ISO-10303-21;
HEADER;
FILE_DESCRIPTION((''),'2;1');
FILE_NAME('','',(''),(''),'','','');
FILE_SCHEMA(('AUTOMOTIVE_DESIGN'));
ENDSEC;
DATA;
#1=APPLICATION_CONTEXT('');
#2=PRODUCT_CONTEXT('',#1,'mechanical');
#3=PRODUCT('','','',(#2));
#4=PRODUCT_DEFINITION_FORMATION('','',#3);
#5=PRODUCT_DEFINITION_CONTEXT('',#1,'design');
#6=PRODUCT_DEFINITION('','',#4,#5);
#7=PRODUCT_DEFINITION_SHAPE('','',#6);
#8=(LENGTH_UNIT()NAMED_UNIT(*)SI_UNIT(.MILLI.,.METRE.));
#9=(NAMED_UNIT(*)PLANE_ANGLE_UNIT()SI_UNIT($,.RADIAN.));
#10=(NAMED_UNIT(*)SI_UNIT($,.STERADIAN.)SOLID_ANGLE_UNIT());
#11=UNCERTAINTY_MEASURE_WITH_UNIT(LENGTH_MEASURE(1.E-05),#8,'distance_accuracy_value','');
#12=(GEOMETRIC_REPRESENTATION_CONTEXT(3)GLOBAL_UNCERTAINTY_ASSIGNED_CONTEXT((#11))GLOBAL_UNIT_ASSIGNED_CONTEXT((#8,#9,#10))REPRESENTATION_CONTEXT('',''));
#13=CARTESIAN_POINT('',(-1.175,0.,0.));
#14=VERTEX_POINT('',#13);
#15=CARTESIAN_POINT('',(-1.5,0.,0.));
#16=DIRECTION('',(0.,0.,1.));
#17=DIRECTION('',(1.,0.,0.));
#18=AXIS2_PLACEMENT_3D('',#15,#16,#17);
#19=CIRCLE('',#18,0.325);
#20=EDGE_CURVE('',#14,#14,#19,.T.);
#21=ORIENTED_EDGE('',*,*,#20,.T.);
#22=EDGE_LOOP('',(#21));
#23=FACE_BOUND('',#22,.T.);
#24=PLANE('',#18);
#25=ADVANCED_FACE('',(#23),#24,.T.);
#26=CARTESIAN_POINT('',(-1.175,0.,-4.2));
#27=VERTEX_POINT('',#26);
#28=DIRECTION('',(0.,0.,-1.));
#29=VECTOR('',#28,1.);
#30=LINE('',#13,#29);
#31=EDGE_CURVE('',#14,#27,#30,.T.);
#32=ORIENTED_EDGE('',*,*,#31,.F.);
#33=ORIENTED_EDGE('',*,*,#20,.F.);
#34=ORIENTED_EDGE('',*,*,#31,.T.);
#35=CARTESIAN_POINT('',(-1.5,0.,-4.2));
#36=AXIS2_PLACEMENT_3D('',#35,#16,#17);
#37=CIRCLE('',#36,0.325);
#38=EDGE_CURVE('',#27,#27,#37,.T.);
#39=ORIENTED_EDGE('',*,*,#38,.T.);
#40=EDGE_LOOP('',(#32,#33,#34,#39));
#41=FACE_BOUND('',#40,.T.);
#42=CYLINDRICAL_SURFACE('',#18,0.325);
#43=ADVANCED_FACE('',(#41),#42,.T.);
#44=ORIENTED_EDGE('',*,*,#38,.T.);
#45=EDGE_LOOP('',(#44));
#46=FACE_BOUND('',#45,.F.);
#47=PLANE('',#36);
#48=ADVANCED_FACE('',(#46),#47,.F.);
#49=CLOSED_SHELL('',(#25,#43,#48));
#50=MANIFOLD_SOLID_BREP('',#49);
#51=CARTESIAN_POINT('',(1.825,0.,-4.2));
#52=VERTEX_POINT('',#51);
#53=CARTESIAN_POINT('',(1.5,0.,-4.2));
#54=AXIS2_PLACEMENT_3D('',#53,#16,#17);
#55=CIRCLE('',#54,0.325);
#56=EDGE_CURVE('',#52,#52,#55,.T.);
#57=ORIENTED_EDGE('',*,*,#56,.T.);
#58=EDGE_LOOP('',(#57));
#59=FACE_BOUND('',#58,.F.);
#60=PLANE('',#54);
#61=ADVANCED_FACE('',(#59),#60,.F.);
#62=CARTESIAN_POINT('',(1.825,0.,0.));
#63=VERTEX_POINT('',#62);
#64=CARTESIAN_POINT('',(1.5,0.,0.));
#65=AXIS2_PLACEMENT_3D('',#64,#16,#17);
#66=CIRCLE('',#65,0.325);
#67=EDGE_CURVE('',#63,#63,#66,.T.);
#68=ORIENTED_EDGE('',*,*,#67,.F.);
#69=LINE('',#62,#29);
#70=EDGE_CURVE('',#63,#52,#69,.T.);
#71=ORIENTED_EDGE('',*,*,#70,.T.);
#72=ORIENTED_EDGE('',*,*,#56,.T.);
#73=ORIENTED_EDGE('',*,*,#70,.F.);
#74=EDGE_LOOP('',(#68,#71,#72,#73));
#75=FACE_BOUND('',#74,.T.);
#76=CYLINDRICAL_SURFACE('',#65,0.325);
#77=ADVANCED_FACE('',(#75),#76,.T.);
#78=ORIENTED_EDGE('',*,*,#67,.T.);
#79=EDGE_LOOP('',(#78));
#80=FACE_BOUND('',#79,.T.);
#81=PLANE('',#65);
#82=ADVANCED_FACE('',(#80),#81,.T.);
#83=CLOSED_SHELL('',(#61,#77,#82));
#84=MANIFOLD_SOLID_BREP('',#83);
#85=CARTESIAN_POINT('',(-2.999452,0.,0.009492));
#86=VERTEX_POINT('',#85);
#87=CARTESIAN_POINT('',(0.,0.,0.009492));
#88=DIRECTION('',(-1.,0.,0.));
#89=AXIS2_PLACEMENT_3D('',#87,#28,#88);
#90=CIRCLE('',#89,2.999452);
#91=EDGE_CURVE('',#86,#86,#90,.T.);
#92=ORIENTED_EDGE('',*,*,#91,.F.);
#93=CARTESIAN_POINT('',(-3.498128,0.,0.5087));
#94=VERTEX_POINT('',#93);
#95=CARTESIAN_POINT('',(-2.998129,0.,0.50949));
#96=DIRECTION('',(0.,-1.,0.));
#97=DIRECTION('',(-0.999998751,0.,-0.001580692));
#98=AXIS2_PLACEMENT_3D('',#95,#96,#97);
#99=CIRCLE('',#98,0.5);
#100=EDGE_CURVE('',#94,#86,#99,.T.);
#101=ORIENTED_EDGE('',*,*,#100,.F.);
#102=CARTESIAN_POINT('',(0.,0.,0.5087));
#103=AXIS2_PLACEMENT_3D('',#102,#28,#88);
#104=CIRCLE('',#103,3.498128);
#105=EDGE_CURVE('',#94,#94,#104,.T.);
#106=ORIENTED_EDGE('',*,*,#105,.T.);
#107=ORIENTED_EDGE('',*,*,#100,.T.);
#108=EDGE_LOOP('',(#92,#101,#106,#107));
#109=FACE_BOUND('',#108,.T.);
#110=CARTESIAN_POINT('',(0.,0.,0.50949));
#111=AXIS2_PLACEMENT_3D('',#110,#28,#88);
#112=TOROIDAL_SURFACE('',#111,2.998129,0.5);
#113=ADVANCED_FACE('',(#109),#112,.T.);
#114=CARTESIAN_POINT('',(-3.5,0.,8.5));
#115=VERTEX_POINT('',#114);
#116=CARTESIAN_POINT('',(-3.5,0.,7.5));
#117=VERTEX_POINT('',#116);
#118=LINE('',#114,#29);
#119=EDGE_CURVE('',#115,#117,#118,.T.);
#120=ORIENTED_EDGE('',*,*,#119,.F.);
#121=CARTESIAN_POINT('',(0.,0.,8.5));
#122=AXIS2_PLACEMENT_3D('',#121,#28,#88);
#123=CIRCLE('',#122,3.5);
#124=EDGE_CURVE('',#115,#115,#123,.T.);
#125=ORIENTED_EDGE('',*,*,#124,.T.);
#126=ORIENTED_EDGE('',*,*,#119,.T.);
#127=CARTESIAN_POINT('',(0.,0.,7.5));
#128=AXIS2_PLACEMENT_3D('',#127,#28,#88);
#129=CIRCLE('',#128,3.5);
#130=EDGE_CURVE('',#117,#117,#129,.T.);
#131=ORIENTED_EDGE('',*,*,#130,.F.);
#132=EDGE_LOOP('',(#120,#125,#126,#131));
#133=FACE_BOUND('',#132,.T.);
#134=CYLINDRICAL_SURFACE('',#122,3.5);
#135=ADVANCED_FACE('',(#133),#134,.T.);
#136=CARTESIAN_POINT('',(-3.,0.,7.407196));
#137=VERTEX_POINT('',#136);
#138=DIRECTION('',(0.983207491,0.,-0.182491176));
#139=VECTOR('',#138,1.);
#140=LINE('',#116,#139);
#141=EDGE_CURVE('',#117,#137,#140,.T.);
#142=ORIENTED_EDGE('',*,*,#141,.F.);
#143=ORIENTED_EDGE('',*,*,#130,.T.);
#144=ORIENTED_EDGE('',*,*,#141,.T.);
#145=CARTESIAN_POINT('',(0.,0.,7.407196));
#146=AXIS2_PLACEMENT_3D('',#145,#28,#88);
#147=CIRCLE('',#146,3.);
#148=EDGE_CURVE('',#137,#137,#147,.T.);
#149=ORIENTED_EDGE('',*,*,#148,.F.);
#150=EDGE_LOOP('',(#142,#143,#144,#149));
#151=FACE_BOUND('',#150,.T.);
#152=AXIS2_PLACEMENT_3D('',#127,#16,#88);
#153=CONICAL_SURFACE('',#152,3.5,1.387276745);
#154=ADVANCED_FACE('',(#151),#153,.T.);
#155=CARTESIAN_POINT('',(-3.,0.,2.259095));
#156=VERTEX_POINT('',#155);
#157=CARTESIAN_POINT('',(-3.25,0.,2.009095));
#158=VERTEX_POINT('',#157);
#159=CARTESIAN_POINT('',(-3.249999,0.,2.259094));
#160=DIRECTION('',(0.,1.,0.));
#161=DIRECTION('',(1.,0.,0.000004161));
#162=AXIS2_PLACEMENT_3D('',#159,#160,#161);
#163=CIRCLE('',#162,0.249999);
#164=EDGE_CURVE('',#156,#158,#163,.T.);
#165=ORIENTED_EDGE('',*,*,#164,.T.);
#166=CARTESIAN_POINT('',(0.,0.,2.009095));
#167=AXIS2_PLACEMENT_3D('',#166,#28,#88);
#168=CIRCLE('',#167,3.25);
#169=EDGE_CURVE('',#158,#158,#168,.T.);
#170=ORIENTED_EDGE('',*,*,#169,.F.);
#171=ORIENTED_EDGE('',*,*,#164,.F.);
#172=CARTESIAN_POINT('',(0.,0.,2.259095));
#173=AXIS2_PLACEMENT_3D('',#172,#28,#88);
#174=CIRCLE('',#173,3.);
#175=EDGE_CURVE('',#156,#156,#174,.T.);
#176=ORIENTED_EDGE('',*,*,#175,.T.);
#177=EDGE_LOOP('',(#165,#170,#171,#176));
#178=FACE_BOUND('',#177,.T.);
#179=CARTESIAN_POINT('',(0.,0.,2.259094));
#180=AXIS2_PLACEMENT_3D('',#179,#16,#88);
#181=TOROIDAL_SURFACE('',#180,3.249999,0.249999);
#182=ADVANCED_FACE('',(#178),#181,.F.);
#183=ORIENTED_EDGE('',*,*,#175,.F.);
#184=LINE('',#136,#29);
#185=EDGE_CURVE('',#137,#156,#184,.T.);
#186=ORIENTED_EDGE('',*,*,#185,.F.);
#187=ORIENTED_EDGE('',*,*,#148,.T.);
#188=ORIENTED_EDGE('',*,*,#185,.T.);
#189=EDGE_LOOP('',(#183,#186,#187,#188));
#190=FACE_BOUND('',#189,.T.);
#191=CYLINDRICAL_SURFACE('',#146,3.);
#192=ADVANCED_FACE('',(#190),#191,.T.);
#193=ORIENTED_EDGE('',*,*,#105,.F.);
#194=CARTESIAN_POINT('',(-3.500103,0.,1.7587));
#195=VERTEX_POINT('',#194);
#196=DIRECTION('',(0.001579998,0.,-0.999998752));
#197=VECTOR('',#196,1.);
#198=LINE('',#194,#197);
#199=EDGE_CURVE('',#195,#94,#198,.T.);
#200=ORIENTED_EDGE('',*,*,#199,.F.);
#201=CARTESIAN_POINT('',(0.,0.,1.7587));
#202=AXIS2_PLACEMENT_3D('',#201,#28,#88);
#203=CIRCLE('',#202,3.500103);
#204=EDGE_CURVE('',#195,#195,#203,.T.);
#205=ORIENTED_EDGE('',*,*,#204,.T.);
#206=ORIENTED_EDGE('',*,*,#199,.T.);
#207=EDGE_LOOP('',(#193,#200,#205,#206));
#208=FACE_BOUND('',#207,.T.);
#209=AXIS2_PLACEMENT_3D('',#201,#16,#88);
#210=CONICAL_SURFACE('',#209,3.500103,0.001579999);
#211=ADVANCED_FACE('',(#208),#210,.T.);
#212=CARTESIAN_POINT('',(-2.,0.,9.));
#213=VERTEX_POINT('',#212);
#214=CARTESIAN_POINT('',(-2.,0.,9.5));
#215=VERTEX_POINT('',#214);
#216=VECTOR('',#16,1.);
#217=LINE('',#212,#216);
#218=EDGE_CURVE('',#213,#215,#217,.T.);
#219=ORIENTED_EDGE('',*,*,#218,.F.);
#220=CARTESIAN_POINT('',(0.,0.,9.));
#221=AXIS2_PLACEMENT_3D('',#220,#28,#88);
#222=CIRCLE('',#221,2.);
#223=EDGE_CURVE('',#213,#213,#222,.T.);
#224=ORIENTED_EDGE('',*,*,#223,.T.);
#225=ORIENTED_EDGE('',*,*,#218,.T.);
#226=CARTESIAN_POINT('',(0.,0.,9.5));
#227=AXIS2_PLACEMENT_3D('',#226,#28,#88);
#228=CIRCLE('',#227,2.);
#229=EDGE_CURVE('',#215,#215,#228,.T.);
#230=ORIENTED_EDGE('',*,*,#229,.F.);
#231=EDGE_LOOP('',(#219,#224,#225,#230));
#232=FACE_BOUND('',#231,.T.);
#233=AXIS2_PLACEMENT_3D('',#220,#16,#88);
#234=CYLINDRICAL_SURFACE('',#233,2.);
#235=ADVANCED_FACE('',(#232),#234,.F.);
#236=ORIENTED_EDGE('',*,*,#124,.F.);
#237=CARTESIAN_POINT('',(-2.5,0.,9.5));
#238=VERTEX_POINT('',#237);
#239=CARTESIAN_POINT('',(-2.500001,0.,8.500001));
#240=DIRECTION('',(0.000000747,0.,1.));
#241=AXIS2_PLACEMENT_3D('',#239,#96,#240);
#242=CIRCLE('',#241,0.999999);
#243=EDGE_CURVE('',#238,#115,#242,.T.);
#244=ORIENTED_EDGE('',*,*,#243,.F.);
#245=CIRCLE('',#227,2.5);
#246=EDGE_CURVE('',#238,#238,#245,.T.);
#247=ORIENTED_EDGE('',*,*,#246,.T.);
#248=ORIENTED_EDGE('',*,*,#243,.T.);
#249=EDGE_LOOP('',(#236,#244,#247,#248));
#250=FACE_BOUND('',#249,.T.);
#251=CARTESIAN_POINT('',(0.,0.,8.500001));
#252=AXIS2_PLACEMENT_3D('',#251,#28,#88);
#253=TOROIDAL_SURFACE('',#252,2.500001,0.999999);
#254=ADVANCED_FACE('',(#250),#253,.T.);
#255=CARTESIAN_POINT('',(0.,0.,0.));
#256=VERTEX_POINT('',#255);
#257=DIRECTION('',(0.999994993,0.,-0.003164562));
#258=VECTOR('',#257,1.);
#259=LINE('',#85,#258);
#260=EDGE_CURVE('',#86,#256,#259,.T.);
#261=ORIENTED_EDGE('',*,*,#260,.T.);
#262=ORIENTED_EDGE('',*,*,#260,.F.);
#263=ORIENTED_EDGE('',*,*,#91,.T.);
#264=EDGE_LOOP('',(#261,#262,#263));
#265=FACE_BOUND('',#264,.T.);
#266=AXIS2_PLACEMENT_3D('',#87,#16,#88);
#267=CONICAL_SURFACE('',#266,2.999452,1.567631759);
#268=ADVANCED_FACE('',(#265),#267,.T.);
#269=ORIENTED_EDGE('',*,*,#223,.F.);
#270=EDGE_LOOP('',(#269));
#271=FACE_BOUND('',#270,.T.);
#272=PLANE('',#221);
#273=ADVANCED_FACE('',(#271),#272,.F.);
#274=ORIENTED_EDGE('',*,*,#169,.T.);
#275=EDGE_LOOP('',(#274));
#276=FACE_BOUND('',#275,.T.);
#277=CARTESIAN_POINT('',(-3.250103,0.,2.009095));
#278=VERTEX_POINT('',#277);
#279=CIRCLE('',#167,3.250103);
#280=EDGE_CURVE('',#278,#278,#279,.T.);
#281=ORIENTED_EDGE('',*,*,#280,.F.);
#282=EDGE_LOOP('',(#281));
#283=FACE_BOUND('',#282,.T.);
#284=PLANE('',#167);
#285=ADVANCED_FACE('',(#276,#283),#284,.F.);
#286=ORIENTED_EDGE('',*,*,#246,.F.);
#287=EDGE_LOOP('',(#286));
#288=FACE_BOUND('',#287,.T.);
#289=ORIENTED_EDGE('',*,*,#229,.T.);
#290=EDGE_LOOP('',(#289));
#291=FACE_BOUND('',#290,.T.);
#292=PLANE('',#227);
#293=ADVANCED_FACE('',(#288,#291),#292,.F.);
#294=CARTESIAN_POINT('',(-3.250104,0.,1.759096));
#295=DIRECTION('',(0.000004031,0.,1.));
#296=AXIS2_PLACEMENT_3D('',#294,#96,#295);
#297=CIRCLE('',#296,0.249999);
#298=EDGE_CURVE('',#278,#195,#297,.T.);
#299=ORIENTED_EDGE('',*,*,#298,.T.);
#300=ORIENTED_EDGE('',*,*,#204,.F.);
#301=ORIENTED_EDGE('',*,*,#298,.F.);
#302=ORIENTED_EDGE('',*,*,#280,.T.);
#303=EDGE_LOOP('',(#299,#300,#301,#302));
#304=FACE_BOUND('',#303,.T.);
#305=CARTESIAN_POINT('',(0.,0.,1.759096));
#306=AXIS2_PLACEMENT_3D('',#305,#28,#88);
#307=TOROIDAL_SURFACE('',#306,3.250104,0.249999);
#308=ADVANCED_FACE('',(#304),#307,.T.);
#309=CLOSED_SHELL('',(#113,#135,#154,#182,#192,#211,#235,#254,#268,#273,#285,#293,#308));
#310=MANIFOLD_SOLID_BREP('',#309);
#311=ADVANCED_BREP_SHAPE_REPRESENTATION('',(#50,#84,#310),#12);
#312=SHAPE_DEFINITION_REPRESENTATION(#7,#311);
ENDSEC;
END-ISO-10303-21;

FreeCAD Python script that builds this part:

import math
import FreeCAD as App
import Part
import Sketcher

V = App.Vector

doc = App.newDocument("Part")
body = doc.addObject("PartDesign::Body", "Body")

# Sketch on XZ plane
sketch1 = doc.addObject("Sketcher::SketchObject", "Sketch")
body.addObject(sketch1)
sketch1.AttachmentSupport = (doc.XZ_Plane, [""])
sketch1.MapMode = "FlatFace"
sketch1.addGeometry([
    Part.LineSegment(V(0, 9, 0), V(-2, 9, 0)),  # 0
    Part.LineSegment(V(-2, 9, 0), V(-2, 9.5, 0)),  # 1
    Part.LineSegment(V(-2, 9.5, 0), V(-2.5, 9.5, 0)),  # 2
    Part.ArcOfCircle(Part.Circle(V(-2.5, 8.5, 0), V(0, 0, 1), 1), math.radians(90), math.radians(180)),  # 3
    Part.LineSegment(V(-3.5, 8.5, 0), V(-3.5, 7.5, 0)),  # 4
    Part.LineSegment(V(-3.5, 7.5, 0), V(-3, 7.4072, 0)),  # 5
    Part.LineSegment(V(-3, 7.4072, 0), V(-3, 2.25909, 0)),  # 6
    Part.ArcOfCircle(Part.Circle(V(-3.25, 2.25909, 0), V(0, 0, 1), 0.25), math.radians(-90), math.radians(0)),  # 7
    Part.LineSegment(V(-3.25, 2.00909, 0), V(-3.2501, 2.00909, 0)),  # 8
    Part.ArcOfCircle(Part.Circle(V(-3.2501, 1.7591, 0), V(0, 0, 1), 0.25), math.radians(90), math.radians(180)),  # 9
    Part.LineSegment(V(-3.5001, 1.7587, 0), V(-3.49813, 0.5087, 0)),  # 10
    Part.ArcOfCircle(Part.Circle(V(-2.99813, 0.50949, 0), V(0, 0, 1), 0.5), math.radians(-180), math.radians(-90)),  # 11
    Part.LineSegment(V(-2.99945, 0.00949, 0), V(0, 0, 0)),  # 12
    Part.LineSegment(V(0, 0, 0), V(0, 9, 0)),  # 13
], False)
sketch1.addConstraint([
    Sketcher.Constraint("Coincident", 0, 2, 1, 1),
    Sketcher.Constraint("Coincident", 1, 2, 2, 1),
    Sketcher.Constraint("Tangent", 2, 2, 3, 1),
    Sketcher.Constraint("Tangent", 3, 2, 4, 1),
    Sketcher.Constraint("Coincident", 4, 2, 5, 1),
    Sketcher.Constraint("Coincident", 5, 2, 6, 1),
    Sketcher.Constraint("Coincident", 6, 2, 7, 2),
    Sketcher.Constraint("Coincident", 7, 1, 8, 1),
    Sketcher.Constraint("Coincident", 8, 2, 9, 1),
    Sketcher.Constraint("Coincident", 9, 2, 10, 1),
    Sketcher.Constraint("Tangent", 10, 2, 11, 1),
    Sketcher.Constraint("Coincident", 11, 2, 12, 1),
    Sketcher.Constraint("Coincident", 12, 2, 13, 1),
    Sketcher.Constraint("Coincident", 13, 2, 0, 1),
    Sketcher.Constraint("Horizontal", 0),
    Sketcher.Constraint("Vertical", 1),
    Sketcher.Constraint("Horizontal", 2),
    Sketcher.Constraint("Vertical", 4),
    Sketcher.Constraint("Vertical", 6),
    Sketcher.Constraint("Horizontal", 8),
    Sketcher.Constraint("Vertical", 13),
    Sketcher.Constraint("Coincident", 12, 2, -1, 1),
    Sketcher.Constraint("Equal", 7, 9),
    Sketcher.Constraint("Horizontal", 7, 3, 6, 2),
    Sketcher.Constraint("Vertical", 9, 3, 8, 2),
    Sketcher.Constraint("Equal", 2, 1),
    Sketcher.Constraint("Radius", 3, 0.999999),
    Sketcher.Constraint("Radius", 11, 0.5),
    Sketcher.Constraint("DistanceX", 0, 2, 0, 1, 2.0),
    Sketcher.Constraint("DistanceY", 4, 2, 4, 1, 1.0),
    Sketcher.Constraint("DistanceY", 13, 1, 13, 2, 9.0),
    Sketcher.Constraint("Radius", 7, 0.249999),
    Sketcher.Constraint("DistanceX", 2, 2, 2, 1, 0.5),
    Sketcher.Constraint("DistanceX", 5, 2, -1, 1, 3.0),
    Sketcher.Constraint("Distance", 10, 1.250002),
    Sketcher.Constraint("DistanceX", 7, 1, -1, 1, 3.25),
    Sketcher.Constraint("DistanceY", 6, 2, 6, 1, 5.148101),
    Sketcher.Constraint("DistanceY", -1, 1, 9, 2, 1.7587),
    Sketcher.Constraint("Distance", 5, 0.50854),
    Sketcher.Constraint("DistanceX", 8, 2, 8, 1, 0.000103),
    Sketcher.Constraint("DistanceX", 11, 3, -1, 1, 2.998129),
    Sketcher.Constraint("DistanceX", 9, 2, 11, 2, 0.500651),
])
revolution = doc.addObject("PartDesign::Revolution", "Revolution")
body.addObject(revolution)
revolution.Profile = sketch1
revolution.ReferenceAxis = (sketch1, ["V_Axis"])
revolution.Angle = 360
body2 = doc.addObject("PartDesign::Body", "Body001")
body2.AllowCompound = True

# Sketch on XY plane
sketch2 = doc.addObject("Sketcher::SketchObject", "Sketch001")
body2.addObject(sketch2)
sketch2.AttachmentSupport = (doc.getObject("XY_Plane001"), [""])
sketch2.MapMode = "FlatFace"
sketch2.addGeometry([
    Part.Circle(V(1.5, 0, 0), V(0, 0, 1), 0.33),
    Part.Circle(V(-1.5, 0, 0), V(0, 0, 1), 0.33),
], False)
sketch2.addConstraint([
    Sketcher.Constraint("Equal", 0, 1),
    Sketcher.Constraint("Symmetric", 0, 3, 1, 3, -1, 1),
    Sketcher.Constraint("PointOnObject", 0, 3, -1),
    Sketcher.Constraint("Diameter", 0, 0.65),
    Sketcher.Constraint("DistanceX", 1, 3, 0, 3, 3.0),
])
pad1 = doc.addObject("PartDesign::Pad", "Pad")
body2.addObject(pad1)
pad1.Profile = sketch2
pad1.Length = 4.2
pad1.Reversed = True

doc.recompute()
